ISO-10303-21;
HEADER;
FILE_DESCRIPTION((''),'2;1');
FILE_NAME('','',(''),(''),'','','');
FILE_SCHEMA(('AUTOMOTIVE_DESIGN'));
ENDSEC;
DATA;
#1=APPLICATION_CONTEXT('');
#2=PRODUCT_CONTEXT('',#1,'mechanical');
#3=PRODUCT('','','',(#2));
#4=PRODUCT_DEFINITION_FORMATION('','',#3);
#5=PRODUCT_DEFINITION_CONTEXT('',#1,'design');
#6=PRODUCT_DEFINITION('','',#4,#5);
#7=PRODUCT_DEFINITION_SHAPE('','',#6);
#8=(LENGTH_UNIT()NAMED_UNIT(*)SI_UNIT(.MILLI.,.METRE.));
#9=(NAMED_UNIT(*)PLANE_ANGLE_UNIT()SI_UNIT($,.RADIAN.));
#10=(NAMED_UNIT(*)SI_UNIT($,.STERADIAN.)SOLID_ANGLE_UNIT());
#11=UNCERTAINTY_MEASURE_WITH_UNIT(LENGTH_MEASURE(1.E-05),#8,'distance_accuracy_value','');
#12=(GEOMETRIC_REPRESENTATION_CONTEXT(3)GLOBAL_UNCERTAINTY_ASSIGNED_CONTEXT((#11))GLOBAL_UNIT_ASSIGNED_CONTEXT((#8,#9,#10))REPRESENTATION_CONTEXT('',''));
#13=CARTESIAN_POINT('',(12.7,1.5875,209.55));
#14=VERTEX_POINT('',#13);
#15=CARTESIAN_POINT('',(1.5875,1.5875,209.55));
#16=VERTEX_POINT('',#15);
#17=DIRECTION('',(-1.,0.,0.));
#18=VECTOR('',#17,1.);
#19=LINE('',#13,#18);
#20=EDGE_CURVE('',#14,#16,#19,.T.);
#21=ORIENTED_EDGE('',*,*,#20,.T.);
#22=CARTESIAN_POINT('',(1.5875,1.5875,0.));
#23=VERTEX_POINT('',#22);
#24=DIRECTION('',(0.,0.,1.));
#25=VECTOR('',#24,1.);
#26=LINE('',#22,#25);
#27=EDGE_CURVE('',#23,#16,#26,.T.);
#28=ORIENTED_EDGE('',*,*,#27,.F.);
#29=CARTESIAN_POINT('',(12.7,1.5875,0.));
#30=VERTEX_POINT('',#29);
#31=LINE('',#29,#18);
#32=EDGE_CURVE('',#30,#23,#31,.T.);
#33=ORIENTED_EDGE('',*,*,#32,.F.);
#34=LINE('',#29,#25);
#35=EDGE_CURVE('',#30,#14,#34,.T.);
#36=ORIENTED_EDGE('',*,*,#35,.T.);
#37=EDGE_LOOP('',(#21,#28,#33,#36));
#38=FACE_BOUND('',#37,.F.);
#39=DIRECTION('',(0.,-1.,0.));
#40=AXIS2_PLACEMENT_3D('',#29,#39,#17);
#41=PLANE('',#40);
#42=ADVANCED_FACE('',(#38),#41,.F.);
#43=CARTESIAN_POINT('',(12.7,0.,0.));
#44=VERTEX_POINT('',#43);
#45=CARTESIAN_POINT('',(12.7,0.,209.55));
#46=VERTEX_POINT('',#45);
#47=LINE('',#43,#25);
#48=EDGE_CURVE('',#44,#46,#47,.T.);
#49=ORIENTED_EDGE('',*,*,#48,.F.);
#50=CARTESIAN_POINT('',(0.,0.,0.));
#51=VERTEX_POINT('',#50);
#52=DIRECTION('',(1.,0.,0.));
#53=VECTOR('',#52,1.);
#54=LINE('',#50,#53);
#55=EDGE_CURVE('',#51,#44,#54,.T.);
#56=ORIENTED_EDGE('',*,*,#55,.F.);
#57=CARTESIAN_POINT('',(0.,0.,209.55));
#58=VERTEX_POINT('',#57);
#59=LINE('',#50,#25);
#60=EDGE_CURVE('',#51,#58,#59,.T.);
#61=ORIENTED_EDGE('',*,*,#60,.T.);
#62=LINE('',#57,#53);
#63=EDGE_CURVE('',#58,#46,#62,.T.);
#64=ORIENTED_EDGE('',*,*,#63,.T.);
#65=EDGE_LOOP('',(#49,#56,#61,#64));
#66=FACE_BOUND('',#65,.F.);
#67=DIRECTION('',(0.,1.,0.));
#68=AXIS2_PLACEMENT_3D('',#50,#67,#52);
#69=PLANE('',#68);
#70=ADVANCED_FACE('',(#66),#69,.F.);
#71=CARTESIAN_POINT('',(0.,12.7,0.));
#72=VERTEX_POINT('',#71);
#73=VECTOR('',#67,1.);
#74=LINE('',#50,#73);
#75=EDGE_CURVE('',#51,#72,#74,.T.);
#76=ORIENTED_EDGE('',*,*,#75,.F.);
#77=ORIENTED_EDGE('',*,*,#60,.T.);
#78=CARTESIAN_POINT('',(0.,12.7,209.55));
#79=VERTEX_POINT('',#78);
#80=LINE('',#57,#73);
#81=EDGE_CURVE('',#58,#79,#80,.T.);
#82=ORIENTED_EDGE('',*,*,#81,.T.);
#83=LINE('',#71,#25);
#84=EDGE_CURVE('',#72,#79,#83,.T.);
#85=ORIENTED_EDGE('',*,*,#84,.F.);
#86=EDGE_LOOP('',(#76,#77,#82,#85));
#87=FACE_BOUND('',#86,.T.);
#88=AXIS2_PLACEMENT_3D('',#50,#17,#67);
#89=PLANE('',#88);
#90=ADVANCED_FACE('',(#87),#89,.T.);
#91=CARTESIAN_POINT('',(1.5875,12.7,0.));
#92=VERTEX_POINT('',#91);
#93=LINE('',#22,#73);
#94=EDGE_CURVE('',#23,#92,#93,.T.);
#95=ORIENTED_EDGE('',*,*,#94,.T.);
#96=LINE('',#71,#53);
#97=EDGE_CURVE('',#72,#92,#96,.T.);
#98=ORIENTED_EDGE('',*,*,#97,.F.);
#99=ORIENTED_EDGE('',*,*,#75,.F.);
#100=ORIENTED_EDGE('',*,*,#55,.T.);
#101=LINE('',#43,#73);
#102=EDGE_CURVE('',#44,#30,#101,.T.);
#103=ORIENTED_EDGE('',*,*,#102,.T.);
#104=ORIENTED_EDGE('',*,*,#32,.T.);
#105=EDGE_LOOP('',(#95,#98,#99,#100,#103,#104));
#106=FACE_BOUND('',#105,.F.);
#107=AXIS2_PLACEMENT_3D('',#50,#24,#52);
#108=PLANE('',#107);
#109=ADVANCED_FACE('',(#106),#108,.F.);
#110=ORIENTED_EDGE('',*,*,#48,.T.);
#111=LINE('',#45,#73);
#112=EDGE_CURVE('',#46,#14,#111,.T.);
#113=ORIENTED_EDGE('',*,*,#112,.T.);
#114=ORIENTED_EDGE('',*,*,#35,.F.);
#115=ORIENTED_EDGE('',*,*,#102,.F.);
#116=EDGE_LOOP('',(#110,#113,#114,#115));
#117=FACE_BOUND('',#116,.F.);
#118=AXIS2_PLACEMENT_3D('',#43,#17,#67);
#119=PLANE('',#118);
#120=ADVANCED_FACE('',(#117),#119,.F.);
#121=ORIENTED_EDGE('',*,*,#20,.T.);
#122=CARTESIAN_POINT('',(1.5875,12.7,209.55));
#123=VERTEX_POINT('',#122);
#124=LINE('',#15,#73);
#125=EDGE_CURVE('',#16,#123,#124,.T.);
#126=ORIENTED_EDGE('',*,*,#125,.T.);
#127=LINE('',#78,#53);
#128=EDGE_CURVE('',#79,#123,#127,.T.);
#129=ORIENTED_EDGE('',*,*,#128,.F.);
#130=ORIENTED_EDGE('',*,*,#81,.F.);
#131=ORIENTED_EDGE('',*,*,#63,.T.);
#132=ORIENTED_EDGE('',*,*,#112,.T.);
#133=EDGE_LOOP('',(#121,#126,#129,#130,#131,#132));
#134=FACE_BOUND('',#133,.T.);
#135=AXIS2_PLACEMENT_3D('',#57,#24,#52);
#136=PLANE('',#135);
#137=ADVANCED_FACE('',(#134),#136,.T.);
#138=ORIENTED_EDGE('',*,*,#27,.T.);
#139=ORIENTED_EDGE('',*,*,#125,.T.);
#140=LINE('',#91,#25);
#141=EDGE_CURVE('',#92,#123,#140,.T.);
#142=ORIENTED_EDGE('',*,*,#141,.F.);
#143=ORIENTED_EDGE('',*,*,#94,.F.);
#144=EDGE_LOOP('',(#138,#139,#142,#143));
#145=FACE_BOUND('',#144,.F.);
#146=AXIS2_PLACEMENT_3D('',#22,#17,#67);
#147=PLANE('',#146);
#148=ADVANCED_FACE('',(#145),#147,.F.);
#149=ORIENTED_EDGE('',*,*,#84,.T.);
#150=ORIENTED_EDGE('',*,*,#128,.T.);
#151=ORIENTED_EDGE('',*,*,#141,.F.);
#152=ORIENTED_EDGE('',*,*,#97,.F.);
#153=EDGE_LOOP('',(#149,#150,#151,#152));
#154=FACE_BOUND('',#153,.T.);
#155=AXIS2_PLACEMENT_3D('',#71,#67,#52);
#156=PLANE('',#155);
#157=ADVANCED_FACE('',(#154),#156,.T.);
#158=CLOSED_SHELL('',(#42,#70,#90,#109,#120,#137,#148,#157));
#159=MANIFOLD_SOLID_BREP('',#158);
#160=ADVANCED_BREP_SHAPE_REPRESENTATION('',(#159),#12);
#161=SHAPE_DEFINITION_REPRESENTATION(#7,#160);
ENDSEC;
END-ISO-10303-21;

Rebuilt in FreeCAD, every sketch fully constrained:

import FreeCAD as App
import Part
import Sketcher
Q = App.Units.Quantity


def add_polygon(sketch, points):
    """Adds a closed chain of lines whose ends are joined by coincident constraints."""
    first, n = sketch.GeometryCount, len(points)
    for a, b in zip(points, points[1:] + points[:1]):
        sketch.addGeometry(Part.LineSegment(App.Vector(*a, 0), App.Vector(*b, 0)), False)
    for i in range(n):
        sketch.addConstraint(Sketcher.Constraint("Coincident", first + i, 2, first + (i + 1) % n, 1))

doc = App.newDocument("Part")
body = doc.addObject("PartDesign::Body", "Body")

sketch1 = body.newObject("Sketcher::SketchObject", "Sketch")
sketch1.AttachmentSupport = (doc.getObject("XY_Plane"), [""])
sketch1.MapMode = "FlatFace"
add_polygon(sketch1, [(0, 12.7), (0, 0), (12.7, 0), (12.7, 1.5875), (1.5875, 1.5875), (1.5875, 12.7)])
sketch1.addConstraint([
    Sketcher.Constraint("Vertical", 0),
    Sketcher.Constraint("Horizontal", 1),
    Sketcher.Constraint("Vertical", 2),
    Sketcher.Constraint("Horizontal", 3),
    Sketcher.Constraint("Vertical", 4),
    Sketcher.Constraint("Horizontal", 5),
    Sketcher.Constraint("Coincident", 0, 2, -1, 1),
    Sketcher.Constraint("Equal", 1, 0),
    Sketcher.Constraint("Equal", 5, 2),
    Sketcher.Constraint("DistanceX", 1, 1, 1, 2, Q("0.5 in")),
    Sketcher.Constraint("DistanceX", 5, 2, 5, 1, Q("0.0625 in")),
])
pad1 = body.newObject("PartDesign::Pad", "Pad")
pad1.Profile = sketch1
pad1.Length = Q("8.25 in")

doc.recompute()
